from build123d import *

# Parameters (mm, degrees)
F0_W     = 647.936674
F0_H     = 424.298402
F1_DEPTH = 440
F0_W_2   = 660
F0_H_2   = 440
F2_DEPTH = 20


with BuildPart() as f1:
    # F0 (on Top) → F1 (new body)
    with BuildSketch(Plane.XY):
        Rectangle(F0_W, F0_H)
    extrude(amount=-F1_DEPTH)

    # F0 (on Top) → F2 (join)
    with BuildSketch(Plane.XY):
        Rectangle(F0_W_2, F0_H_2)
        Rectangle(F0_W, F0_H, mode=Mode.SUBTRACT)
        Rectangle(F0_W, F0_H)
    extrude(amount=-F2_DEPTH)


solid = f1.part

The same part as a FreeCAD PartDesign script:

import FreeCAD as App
import Part
import Sketcher
Q = App.Units.Quantity

doc = App.newDocument("Part")
body = doc.addObject("PartDesign::Body", "Body")

sketch1 = doc.addObject("Sketcher::SketchObject", "Sketch")
body.addObject(sketch1)
sketch1.AttachmentSupport = (doc.XY_Plane, [""])
sketch1.MapMode = "FlatFace"
sketch1.addGeometry([
    Part.LineSegment(App.Vector(-324, 212, 0), App.Vector(-324, -212, 0)),
    Part.LineSegment(App.Vector(-324, -212, 0), App.Vector(324, -212, 0)),
    Part.LineSegment(App.Vector(324, -212, 0), App.Vector(324, 212, 0)),
    Part.LineSegment(App.Vector(324, 212, 0), App.Vector(-324, 212, 0)),
], False)
sketch1.addConstraint([
    Sketcher.Constraint("Coincident", 0, 2, 1, 1),
    Sketcher.Constraint("Coincident", 1, 2, 2, 1),
    Sketcher.Constraint("Coincident", 2, 2, 3, 1),
    Sketcher.Constraint("Coincident", 3, 2, 0, 1),
    Sketcher.Constraint("Vertical", 0),
    Sketcher.Constraint("Horizontal", 1),
    Sketcher.Constraint("Vertical", 2),
    Sketcher.Constraint("Horizontal", 3),
    Sketcher.Constraint("Symmetric", 0, 2, 2, 2, -1, 1),
    Sketcher.Constraint("DistanceY", 0, 2, 0, 1, Q("424.298402 mm")),
    Sketcher.Constraint("DistanceX", 1, 1, 1, 2, Q("647.936674 mm")),
])
pad1 = doc.addObject("PartDesign::Pad", "Pad")
body.addObject(pad1)
pad1.Profile = sketch1
pad1.Length = 440
pad1.Reversed = True

sketch2 = doc.addObject("Sketcher::SketchObject", "Sketch001")
body.addObject(sketch2)
sketch2.AttachmentSupport = (doc.XY_Plane, [""])
sketch2.MapMode = "FlatFace"
sketch2.addGeometry([
    Part.LineSegment(App.Vector(-330, 220, 0), App.Vector(-330, -220, 0)),
    Part.LineSegment(App.Vector(-330, -220, 0), App.Vector(330, -220, 0)),
    Part.LineSegment(App.Vector(330, -220, 0), App.Vector(330, 220, 0)),
    Part.LineSegment(App.Vector(330, 220, 0), App.Vector(-330, 220, 0)),
], False)
sketch2.addConstraint([
    Sketcher.Constraint("Coincident", 0, 2, 1, 1),
    Sketcher.Constraint("Coincident", 1, 2, 2, 1),
    Sketcher.Constraint("Coincident", 2, 2, 3, 1),
    Sketcher.Constraint("Coincident", 3, 2, 0, 1),
    Sketcher.Constraint("Vertical", 0),
    Sketcher.Constraint("Horizontal", 1),
    Sketcher.Constraint("Vertical", 2),
    Sketcher.Constraint("Horizontal", 3),
    Sketcher.Constraint("Symmetric", 0, 2, 2, 2, -1, 1),
    Sketcher.Constraint("DistanceX", 1, 1, 1, 2, Q("660 mm")),
    Sketcher.Constraint("DistanceY", 0, 2, 0, 1, Q("440 mm")),
])
pad2 = doc.addObject("PartDesign::Pad", "Pad001")
body.addObject(pad2)
pad2.Profile = sketch2
pad2.Length = 20
pad2.Reversed = True

doc.recompute()
